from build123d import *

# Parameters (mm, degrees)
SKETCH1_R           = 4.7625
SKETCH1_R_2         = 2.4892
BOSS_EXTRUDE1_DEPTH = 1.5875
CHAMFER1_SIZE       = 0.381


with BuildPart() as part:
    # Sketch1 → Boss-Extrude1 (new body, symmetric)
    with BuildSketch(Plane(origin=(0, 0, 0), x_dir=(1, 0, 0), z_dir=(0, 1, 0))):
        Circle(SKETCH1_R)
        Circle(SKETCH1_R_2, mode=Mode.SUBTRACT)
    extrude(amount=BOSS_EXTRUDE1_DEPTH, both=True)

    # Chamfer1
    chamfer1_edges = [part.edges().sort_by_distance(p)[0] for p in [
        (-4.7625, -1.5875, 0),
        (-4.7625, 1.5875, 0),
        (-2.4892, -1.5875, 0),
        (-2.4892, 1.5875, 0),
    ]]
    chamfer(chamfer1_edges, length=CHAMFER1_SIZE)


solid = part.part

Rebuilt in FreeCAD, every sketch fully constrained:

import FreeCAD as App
import Part
import Sketcher
Q = App.Units.Quantity


def edges_at(feature, points):
    """Names of the edges that pass closest to the given points."""
    edges = feature.Shape.Edges
    near = lambda p: min(range(len(edges)), key=lambda i: edges[i].distToShape(Part.Vertex(*p))[0])
    return sorted({f"Edge{near(p) + 1}" for p in points})

doc = App.newDocument("Part")
body = doc.addObject("PartDesign::Body", "Body")

sketch1 = body.newObject("Sketcher::SketchObject", "Sketch")
sketch1.AttachmentSupport = (doc.getObject("XZ_Plane"), [""])
sketch1.MapMode = "FlatFace"
sketch1.addGeometry([
    Part.Circle(App.Vector(0, 0, 0), App.Vector(0, 0, 1), 4.8),
    Part.Circle(App.Vector(0, 0, 0), App.Vector(0, 0, 1), 2.5),
], False)
sketch1.addConstraint([
    Sketcher.Constraint("Coincident", 0, 3, -1, 1),
    Sketcher.Constraint("Coincident", 1, 3, -1, 1),
    Sketcher.Constraint("Diameter", 0, Q("0.375 in")),
    Sketcher.Constraint("Diameter", 1, Q("0.196 in")),
])
pad1 = body.newObject("PartDesign::Pad", "Pad")
pad1.Profile = sketch1
pad1.Length = Q("0.125 in")
pad1.Midplane = True
doc.recompute()

chamfer = body.newObject("PartDesign::Chamfer", "Chamfer")
chamfer.Base = (pad1, edges_at(pad1, [
    (-4.763, -1.587, 0),
    (-4.763, 1.587, 0),
    (-2.489, -1.587, 0),
    (-2.489, 1.587, 0),
]))
chamfer.Size = Q("0.015 in")

doc.recompute()
